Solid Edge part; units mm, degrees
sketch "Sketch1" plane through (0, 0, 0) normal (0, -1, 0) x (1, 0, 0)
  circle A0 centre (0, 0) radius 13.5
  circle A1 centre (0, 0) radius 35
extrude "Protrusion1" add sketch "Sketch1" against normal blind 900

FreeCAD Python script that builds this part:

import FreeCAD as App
import Part
import Sketcher

doc = App.newDocument("Part")
body = doc.addObject("PartDesign::Body", "Body")

# Sketch on XZ plane
sketch1 = body.newObject("Sketcher::SketchObject", "Sketch")
sketch1.AttachmentSupport = (doc.getObject("XZ_Plane"), [""])
sketch1.MapMode = "FlatFace"
sketch1.addGeometry([
    Part.Circle(App.Vector(0, 0, 0), App.Vector(0, 0, 1), 35),
    Part.Circle(App.Vector(0, 0, 0), App.Vector(0, 0, 1), 14),
], False)
sketch1.addConstraint([
    Sketcher.Constraint("Coincident", 0, 3, -1, 1),
    Sketcher.Constraint("Coincident", 1, 3, -1, 1),
    Sketcher.Constraint("Diameter", 0, 70.0),
    Sketcher.Constraint("Diameter", 1, 27.0),
])
pad1 = body.newObject("PartDesign::Pad", "Pad")
pad1.Profile = sketch1
pad1.Length = 900
pad1.Reversed = True

doc.recompute()
